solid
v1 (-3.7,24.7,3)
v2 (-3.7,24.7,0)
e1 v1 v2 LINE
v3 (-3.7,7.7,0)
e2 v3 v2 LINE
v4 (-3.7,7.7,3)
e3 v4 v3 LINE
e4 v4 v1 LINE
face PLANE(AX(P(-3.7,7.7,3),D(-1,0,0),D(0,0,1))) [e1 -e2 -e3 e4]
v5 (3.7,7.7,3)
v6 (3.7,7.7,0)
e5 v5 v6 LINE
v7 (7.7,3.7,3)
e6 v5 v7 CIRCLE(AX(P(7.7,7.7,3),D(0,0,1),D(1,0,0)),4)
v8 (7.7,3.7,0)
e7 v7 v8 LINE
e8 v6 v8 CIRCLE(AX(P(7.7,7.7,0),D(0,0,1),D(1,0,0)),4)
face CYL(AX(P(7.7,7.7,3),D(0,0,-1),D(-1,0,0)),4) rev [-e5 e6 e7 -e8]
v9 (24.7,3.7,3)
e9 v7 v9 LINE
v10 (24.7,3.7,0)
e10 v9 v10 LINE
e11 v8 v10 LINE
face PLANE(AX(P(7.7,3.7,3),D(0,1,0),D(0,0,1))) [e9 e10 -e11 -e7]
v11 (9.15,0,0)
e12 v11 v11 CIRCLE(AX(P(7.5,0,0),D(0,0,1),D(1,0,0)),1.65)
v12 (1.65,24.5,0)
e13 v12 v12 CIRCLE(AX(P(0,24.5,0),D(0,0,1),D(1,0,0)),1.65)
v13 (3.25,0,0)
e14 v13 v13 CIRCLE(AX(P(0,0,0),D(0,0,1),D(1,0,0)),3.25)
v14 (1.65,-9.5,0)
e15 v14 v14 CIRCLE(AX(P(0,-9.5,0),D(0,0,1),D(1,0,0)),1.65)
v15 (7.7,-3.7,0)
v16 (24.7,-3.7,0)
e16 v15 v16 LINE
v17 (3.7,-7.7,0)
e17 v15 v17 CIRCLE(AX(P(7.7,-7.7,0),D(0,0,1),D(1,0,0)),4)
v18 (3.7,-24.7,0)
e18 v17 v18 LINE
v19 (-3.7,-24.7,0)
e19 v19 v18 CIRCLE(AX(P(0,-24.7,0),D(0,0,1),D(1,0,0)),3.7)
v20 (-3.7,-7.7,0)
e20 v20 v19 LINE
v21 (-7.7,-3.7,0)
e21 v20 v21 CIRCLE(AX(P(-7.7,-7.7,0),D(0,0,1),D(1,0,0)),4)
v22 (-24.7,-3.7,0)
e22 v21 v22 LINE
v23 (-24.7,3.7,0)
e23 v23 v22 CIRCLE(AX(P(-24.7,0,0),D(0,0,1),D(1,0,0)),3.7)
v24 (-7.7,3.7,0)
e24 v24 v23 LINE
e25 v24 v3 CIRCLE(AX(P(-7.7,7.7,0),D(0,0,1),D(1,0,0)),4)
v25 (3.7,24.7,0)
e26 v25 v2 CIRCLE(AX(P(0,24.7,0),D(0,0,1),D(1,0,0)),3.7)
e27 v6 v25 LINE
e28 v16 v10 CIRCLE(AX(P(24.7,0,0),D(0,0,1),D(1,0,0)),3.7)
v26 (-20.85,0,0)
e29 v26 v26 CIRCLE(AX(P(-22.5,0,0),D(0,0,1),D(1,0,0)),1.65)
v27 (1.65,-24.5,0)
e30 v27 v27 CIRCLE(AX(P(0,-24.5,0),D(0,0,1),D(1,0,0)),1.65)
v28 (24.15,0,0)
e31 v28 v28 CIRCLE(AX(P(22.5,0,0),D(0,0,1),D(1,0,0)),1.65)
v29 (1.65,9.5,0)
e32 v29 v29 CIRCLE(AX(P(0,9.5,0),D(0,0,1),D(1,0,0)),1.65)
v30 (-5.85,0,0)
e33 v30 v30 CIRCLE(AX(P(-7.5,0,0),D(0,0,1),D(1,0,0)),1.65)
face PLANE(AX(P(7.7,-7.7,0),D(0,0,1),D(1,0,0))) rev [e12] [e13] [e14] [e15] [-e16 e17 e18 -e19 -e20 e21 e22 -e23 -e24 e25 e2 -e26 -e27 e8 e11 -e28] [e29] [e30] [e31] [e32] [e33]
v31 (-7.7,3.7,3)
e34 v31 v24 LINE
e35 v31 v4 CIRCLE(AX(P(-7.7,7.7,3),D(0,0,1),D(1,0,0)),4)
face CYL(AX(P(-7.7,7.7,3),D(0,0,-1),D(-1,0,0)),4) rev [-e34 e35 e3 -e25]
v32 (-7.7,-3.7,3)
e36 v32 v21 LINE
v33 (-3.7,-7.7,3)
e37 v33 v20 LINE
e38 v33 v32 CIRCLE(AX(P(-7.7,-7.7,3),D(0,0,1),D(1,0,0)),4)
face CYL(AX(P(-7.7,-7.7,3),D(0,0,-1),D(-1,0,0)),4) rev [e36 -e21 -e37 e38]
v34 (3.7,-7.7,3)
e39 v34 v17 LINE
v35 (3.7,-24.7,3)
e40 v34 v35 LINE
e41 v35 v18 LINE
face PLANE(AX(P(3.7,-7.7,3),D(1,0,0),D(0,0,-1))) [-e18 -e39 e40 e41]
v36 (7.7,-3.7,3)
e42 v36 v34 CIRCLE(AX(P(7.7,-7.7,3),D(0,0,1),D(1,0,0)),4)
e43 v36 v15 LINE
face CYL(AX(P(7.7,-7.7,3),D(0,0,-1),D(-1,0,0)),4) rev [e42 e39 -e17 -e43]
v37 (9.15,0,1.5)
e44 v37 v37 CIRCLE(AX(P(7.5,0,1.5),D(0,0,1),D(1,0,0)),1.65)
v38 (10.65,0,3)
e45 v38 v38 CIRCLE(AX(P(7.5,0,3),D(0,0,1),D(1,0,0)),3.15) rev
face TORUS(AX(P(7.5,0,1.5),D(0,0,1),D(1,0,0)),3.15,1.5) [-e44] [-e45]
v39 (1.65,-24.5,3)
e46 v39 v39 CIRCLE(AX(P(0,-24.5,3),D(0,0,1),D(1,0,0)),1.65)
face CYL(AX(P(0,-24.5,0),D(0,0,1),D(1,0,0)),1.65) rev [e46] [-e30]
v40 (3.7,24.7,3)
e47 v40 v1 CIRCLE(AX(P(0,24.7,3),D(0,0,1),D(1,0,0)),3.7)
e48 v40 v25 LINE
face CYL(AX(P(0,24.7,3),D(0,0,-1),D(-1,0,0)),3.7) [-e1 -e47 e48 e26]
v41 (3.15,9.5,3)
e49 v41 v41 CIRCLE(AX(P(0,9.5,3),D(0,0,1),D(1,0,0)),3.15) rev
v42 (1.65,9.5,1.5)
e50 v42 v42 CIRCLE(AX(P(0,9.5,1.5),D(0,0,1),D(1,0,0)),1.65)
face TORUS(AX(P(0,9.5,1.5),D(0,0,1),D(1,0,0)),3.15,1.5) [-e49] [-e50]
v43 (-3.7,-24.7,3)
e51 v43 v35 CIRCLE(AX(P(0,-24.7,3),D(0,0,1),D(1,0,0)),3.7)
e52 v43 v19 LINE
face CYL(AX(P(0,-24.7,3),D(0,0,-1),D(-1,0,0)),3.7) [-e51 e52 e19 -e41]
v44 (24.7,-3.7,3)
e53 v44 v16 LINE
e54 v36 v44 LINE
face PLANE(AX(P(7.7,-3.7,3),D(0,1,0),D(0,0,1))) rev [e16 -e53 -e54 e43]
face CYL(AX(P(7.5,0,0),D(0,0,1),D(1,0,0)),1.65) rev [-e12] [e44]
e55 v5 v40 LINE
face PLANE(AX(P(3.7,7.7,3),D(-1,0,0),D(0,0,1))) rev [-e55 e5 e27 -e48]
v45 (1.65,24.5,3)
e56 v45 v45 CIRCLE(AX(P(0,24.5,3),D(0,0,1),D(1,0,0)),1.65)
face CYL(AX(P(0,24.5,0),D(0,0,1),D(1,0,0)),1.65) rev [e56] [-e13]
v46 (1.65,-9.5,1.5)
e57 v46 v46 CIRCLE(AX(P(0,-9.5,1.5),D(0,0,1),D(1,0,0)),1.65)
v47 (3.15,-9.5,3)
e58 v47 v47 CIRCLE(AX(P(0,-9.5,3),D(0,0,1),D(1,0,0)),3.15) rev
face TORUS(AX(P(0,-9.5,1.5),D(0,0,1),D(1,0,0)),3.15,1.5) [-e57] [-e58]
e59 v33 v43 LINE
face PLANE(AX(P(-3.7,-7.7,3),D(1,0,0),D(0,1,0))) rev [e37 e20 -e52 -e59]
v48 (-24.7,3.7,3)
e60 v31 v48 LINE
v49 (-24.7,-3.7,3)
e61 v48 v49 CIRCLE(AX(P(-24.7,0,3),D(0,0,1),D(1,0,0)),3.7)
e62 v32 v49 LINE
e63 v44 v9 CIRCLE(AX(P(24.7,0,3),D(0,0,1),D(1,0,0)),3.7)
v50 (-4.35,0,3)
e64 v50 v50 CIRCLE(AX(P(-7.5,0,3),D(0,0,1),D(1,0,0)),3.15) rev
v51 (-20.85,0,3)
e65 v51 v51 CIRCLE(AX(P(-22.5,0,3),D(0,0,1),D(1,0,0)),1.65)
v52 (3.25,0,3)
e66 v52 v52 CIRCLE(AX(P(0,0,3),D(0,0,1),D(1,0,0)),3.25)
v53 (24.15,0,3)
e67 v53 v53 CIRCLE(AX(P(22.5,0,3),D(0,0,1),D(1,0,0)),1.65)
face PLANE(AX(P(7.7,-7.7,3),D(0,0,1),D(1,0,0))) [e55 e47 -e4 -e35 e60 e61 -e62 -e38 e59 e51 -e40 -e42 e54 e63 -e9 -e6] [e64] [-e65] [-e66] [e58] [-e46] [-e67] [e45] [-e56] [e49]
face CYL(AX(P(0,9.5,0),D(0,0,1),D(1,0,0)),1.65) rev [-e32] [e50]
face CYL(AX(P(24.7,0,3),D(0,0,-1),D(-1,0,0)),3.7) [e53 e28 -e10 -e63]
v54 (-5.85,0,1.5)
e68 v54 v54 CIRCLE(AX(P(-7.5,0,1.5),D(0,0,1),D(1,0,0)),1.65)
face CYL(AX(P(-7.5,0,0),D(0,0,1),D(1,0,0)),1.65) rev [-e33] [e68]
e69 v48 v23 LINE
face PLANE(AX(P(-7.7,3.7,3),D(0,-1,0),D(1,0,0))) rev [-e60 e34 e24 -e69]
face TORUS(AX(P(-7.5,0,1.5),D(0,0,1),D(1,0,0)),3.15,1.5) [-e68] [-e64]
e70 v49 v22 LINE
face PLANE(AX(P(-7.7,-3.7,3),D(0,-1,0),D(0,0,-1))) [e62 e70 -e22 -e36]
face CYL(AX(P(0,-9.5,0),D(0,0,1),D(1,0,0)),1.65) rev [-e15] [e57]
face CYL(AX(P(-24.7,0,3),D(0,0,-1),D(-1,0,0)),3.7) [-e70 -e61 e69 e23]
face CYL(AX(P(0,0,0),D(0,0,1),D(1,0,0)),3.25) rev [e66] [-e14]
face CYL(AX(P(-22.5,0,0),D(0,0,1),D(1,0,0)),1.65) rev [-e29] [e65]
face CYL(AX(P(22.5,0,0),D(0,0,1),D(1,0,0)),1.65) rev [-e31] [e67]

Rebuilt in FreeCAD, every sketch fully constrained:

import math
import FreeCAD as App
import Part
import Sketcher
Q = App.Units.Quantity


def edges_at(feature, points):
    """Names of the edges that pass closest to the given points."""
    edges = feature.Shape.Edges
    near = lambda p: min(range(len(edges)), key=lambda i: edges[i].distToShape(Part.Vertex(*p))[0])
    return sorted({f"Edge{near(p) + 1}" for p in points})

doc = App.newDocument("Part")
params = doc.addObject("Spreadsheet::Sheet", "Params")
for row, (alias, value) in enumerate([
    ("sketch1_radius", "4 mm"),
    ("sketch1_radius2", "3.7 mm"),
    ("sketch1_width", "17 mm"),
    ("pad1_length", "3 mm"),
    ("sketch2_diameter", "6.5 mm"),
    ("sketch2_diameter2", "3.3 mm"),
    ("pocket1_length", "3 mm"),
    ("fillet_radius", "1.5 mm"),
    ("fillet2_radius", "1.5 mm"),
    ("fillet3_radius", "1.5 mm"),
    ("fillet4_radius", "1.5 mm"),
], start=1):
    params.set(f"A{row}", alias)
    params.set(f"B{row}", "=" + value)
    params.setAlias(f"B{row}", alias)

body = doc.addObject("PartDesign::Body", "Body")

sketch1 = doc.addObject("Sketcher::SketchObject", "Sketch")
body.addObject(sketch1)
sketch1.AttachmentSupport = (doc.XY_Plane, [""])
sketch1.MapMode = "FlatFace"
sketch1.addGeometry([
    Part.LineSegment(App.Vector(-7.7, 3.7, 0), App.Vector(-24.7, 3.7, 0)),
    Part.ArcOfCircle(Part.Circle(App.Vector(-24.7, 0, 0), App.Vector(0, 0, 1), 3.7), math.radians(90), math.radians(270)),
    Part.LineSegment(App.Vector(-24.7, -3.7, 0), App.Vector(-7.7, -3.7, 0)),
    Part.ArcOfCircle(Part.Circle(App.Vector(-7.7, -7.7, 0), App.Vector(0, 0, 1), 4), math.radians(0), math.radians(90)),
    Part.LineSegment(App.Vector(-3.7, -7.7, 0), App.Vector(-3.7, -24.7, 0)),
    Part.ArcOfCircle(Part.Circle(App.Vector(0, -24.7, 0), App.Vector(0, 0, 1), 3.7), math.radians(180), math.radians(360)),
    Part.LineSegment(App.Vector(3.7, -24.7, 0), App.Vector(3.7, -7.7, 0)),
    Part.ArcOfCircle(Part.Circle(App.Vector(7.7, -7.7, 0), App.Vector(0, 0, 1), 4), math.radians(90), math.radians(180)),
    Part.LineSegment(App.Vector(7.7, -3.7, 0), App.Vector(24.7, -3.7, 0)),
    Part.ArcOfCircle(Part.Circle(App.Vector(24.7, 0, 0), App.Vector(0, 0, 1), 3.7), math.radians(-90), math.radians(90)),
    Part.LineSegment(App.Vector(24.7, 3.7, 0), App.Vector(7.7, 3.7, 0)),
    Part.ArcOfCircle(Part.Circle(App.Vector(7.7, 7.7, 0), App.Vector(0, 0, 1), 4), math.radians(180), math.radians(270)),
    Part.LineSegment(App.Vector(3.7, 7.7, 0), App.Vector(3.7, 24.7, 0)),
    Part.ArcOfCircle(Part.Circle(App.Vector(0, 24.7, 0), App.Vector(0, 0, 1), 3.7), math.radians(0), math.radians(180)),
    Part.LineSegment(App.Vector(-3.7, 24.7, 0), App.Vector(-3.7, 7.7, 0)),
    Part.ArcOfCircle(Part.Circle(App.Vector(-7.7, 7.7, 0), App.Vector(0, 0, 1), 4), math.radians(-90), math.radians(0)),
], False)
sketch1.addConstraint([
    Sketcher.Constraint("Tangent", 0, 2, 1, 1),
    Sketcher.Constraint("Tangent", 1, 2, 2, 1),
    Sketcher.Constraint("Tangent", 2, 2, 3, 2),
    Sketcher.Constraint("Tangent", 3, 1, 4, 1),
    Sketcher.Constraint("Tangent", 4, 2, 5, 1),
    Sketcher.Constraint("Tangent", 5, 2, 6, 1),
    Sketcher.Constraint("Tangent", 6, 2, 7, 2),
    Sketcher.Constraint("Tangent", 7, 1, 8, 1),
    Sketcher.Constraint("Tangent", 8, 2, 9, 1),
    Sketcher.Constraint("Tangent", 9, 2, 10, 1),
    Sketcher.Constraint("Tangent", 10, 2, 11, 2),
    Sketcher.Constraint("Tangent", 11, 1, 12, 1),
    Sketcher.Constraint("Tangent", 12, 2, 13, 1),
    Sketcher.Constraint("Tangent", 13, 2, 14, 1),
    Sketcher.Constraint("Tangent", 14, 2, 15, 2),
    Sketcher.Constraint("Tangent", 15, 1, 0, 1),
    Sketcher.Constraint("Horizontal", 0),
    Sketcher.Constraint("Horizontal", 2),
    Sketcher.Constraint("Vertical", 4),
    Sketcher.Constraint("Vertical", 6),
    Sketcher.Constraint("Horizontal", 8),
    Sketcher.Constraint("Horizontal", 10),
    Sketcher.Constraint("Vertical", 12),
    Sketcher.Constraint("Vertical", 14),
    Sketcher.Constraint("Equal", 1, 5),
    Sketcher.Constraint("Equal", 3, 7),
    Sketcher.Constraint("Equal", 5, 9),
    Sketcher.Constraint("Equal", 7, 11),
    Sketcher.Constraint("Equal", 9, 13),
    Sketcher.Constraint("Equal", 11, 15),
    Sketcher.Constraint("Symmetric", 1, 3, 9, 3, -1, 1),
    Sketcher.Constraint("Symmetric", 5, 3, 13, 3, -1, 1),
    Sketcher.Constraint("Symmetric", 3, 3, 7, 3, -2),
    Sketcher.Constraint("Equal", 10, 4),
    Sketcher.Constraint("Radius", 3, Q("4 mm")),
    Sketcher.Constraint("Radius", 1, Q("3.7 mm")),
    Sketcher.Constraint("DistanceX", 0, 2, 0, 1, Q("17 mm")),
])
sketch1.setExpression("Constraints[34]", "Params.sketch1_radius")
sketch1.setExpression("Constraints[35]", "Params.sketch1_radius2")
sketch1.setExpression("Constraints[36]", "Params.sketch1_width")
pad1 = doc.addObject("PartDesign::Pad", "Pad")
body.addObject(pad1)
pad1.Profile = sketch1
pad1.setExpression("Length", "Params.pad1_length")

sketch2 = doc.addObject("Sketcher::SketchObject", "Sketch001")
body.addObject(sketch2)
sketch2.AttachmentSupport = (doc.XY_Plane, [""])
sketch2.MapMode = "FlatFace"
sketch2.AttachmentOffset = App.Placement(App.Vector(0, 0, 3), App.Rotation())
sketch2.addGeometry([
    Part.Circle(App.Vector(0, 0, 0), App.Vector(0, 0, 1), 3.2),
    Part.Circle(App.Vector(-7.5, 0, 0), App.Vector(0, 0, 1), 1.6),
    Part.Circle(App.Vector(-22.5, 0, 0), App.Vector(0, 0, 1), 1.6),
    Part.Circle(App.Vector(0, -9.5, 0), App.Vector(0, 0, 1), 1.6),
    Part.Circle(App.Vector(7.5, 0, 0), App.Vector(0, 0, 1), 1.6),
    Part.Circle(App.Vector(0, 9.5, 0), App.Vector(0, 0, 1), 1.6),
    Part.Circle(App.Vector(0, 24.5, 0), App.Vector(0, 0, 1), 1.6),
    Part.Circle(App.Vector(22.5, 0, 0), App.Vector(0, 0, 1), 1.6),
    Part.Circle(App.Vector(0, -24.5, 0), App.Vector(0, 0, 1), 1.6),
], False)
sketch2.addConstraint([
    Sketcher.Constraint("Coincident", 0, 3, -1, 1),
    Sketcher.Constraint("Equal", 1, 2),
    Sketcher.Constraint("Equal", 2, 3),
    Sketcher.Constraint("Equal", 3, 4),
    Sketcher.Constraint("Equal", 4, 5),
    Sketcher.Constraint("Equal", 5, 6),
    Sketcher.Constraint("Equal", 6, 7),
    Sketcher.Constraint("Equal", 7, 8),
    Sketcher.Constraint("Symmetric", 1, 3, 4, 3, -1, 1),
    Sketcher.Constraint("Symmetric", 3, 3, 5, 3, -1, 1),
    Sketcher.Constraint("Symmetric", 2, 3, 7, 3, -1, 1),
    Sketcher.Constraint("Symmetric", 6, 3, 8, 3, -1, 1),
    Sketcher.Constraint("PointOnObject", 1, 3, -1),
    Sketcher.Constraint("PointOnObject", 2, 3, -1),
    Sketcher.Constraint("PointOnObject", 3, 3, -2),
    Sketcher.Constraint("PointOnObject", 6, 3, -2),
    Sketcher.Constraint("Diameter", 0, Q("6.5 mm")),
    Sketcher.Constraint("Diameter", 1, Q("3.3 mm")),
    Sketcher.Constraint("DistanceX", 2, 3, 1, 3, Q("15 mm")),
    Sketcher.Constraint("DistanceX", 1, 3, 4, 3, Q("15 mm")),
    Sketcher.Constraint("DistanceY", 3, 3, 5, 3, Q("19 mm")),
    Sketcher.Constraint("DistanceY", 5, 3, 6, 3, Q("15 mm")),
])
sketch2.setExpression("Constraints[16]", "Params.sketch2_diameter")
sketch2.setExpression("Constraints[17]", "Params.sketch2_diameter2")
pocket1 = doc.addObject("PartDesign::Pocket", "Pocket")
body.addObject(pocket1)
pocket1.Profile = sketch2
pocket1.setExpression("Length", "Params.pocket1_length")
doc.recompute()

fillet = doc.addObject("PartDesign::Fillet", "Fillet")
body.addObject(fillet)
fillet.Base = (pocket1, edges_at(pocket1, [(-9.15, 0, 3)]))
fillet.setExpression("Radius", "Params.fillet_radius")
doc.recompute()

fillet2 = doc.addObject("PartDesign::Fillet", "Fillet001")
body.addObject(fillet2)
fillet2.Base = (fillet, edges_at(fillet, [(-1.65, 9.5, 3)]))
fillet2.setExpression("Radius", "Params.fillet2_radius")
doc.recompute()

fillet3 = doc.addObject("PartDesign::Fillet", "Fillet002")
body.addObject(fillet3)
fillet3.Base = (fillet2, edges_at(fillet2, [(5.85, 0, 3)]))
fillet3.setExpression("Radius", "Params.fillet3_radius")
doc.recompute()

fillet4 = doc.addObject("PartDesign::Fillet", "Fillet003")
body.addObject(fillet4)
fillet4.Base = (fillet3, edges_at(fillet3, [(-1.65, -9.5, 3)]))
fillet4.setExpression("Radius", "Params.fillet4_radius")

doc.recompute()
